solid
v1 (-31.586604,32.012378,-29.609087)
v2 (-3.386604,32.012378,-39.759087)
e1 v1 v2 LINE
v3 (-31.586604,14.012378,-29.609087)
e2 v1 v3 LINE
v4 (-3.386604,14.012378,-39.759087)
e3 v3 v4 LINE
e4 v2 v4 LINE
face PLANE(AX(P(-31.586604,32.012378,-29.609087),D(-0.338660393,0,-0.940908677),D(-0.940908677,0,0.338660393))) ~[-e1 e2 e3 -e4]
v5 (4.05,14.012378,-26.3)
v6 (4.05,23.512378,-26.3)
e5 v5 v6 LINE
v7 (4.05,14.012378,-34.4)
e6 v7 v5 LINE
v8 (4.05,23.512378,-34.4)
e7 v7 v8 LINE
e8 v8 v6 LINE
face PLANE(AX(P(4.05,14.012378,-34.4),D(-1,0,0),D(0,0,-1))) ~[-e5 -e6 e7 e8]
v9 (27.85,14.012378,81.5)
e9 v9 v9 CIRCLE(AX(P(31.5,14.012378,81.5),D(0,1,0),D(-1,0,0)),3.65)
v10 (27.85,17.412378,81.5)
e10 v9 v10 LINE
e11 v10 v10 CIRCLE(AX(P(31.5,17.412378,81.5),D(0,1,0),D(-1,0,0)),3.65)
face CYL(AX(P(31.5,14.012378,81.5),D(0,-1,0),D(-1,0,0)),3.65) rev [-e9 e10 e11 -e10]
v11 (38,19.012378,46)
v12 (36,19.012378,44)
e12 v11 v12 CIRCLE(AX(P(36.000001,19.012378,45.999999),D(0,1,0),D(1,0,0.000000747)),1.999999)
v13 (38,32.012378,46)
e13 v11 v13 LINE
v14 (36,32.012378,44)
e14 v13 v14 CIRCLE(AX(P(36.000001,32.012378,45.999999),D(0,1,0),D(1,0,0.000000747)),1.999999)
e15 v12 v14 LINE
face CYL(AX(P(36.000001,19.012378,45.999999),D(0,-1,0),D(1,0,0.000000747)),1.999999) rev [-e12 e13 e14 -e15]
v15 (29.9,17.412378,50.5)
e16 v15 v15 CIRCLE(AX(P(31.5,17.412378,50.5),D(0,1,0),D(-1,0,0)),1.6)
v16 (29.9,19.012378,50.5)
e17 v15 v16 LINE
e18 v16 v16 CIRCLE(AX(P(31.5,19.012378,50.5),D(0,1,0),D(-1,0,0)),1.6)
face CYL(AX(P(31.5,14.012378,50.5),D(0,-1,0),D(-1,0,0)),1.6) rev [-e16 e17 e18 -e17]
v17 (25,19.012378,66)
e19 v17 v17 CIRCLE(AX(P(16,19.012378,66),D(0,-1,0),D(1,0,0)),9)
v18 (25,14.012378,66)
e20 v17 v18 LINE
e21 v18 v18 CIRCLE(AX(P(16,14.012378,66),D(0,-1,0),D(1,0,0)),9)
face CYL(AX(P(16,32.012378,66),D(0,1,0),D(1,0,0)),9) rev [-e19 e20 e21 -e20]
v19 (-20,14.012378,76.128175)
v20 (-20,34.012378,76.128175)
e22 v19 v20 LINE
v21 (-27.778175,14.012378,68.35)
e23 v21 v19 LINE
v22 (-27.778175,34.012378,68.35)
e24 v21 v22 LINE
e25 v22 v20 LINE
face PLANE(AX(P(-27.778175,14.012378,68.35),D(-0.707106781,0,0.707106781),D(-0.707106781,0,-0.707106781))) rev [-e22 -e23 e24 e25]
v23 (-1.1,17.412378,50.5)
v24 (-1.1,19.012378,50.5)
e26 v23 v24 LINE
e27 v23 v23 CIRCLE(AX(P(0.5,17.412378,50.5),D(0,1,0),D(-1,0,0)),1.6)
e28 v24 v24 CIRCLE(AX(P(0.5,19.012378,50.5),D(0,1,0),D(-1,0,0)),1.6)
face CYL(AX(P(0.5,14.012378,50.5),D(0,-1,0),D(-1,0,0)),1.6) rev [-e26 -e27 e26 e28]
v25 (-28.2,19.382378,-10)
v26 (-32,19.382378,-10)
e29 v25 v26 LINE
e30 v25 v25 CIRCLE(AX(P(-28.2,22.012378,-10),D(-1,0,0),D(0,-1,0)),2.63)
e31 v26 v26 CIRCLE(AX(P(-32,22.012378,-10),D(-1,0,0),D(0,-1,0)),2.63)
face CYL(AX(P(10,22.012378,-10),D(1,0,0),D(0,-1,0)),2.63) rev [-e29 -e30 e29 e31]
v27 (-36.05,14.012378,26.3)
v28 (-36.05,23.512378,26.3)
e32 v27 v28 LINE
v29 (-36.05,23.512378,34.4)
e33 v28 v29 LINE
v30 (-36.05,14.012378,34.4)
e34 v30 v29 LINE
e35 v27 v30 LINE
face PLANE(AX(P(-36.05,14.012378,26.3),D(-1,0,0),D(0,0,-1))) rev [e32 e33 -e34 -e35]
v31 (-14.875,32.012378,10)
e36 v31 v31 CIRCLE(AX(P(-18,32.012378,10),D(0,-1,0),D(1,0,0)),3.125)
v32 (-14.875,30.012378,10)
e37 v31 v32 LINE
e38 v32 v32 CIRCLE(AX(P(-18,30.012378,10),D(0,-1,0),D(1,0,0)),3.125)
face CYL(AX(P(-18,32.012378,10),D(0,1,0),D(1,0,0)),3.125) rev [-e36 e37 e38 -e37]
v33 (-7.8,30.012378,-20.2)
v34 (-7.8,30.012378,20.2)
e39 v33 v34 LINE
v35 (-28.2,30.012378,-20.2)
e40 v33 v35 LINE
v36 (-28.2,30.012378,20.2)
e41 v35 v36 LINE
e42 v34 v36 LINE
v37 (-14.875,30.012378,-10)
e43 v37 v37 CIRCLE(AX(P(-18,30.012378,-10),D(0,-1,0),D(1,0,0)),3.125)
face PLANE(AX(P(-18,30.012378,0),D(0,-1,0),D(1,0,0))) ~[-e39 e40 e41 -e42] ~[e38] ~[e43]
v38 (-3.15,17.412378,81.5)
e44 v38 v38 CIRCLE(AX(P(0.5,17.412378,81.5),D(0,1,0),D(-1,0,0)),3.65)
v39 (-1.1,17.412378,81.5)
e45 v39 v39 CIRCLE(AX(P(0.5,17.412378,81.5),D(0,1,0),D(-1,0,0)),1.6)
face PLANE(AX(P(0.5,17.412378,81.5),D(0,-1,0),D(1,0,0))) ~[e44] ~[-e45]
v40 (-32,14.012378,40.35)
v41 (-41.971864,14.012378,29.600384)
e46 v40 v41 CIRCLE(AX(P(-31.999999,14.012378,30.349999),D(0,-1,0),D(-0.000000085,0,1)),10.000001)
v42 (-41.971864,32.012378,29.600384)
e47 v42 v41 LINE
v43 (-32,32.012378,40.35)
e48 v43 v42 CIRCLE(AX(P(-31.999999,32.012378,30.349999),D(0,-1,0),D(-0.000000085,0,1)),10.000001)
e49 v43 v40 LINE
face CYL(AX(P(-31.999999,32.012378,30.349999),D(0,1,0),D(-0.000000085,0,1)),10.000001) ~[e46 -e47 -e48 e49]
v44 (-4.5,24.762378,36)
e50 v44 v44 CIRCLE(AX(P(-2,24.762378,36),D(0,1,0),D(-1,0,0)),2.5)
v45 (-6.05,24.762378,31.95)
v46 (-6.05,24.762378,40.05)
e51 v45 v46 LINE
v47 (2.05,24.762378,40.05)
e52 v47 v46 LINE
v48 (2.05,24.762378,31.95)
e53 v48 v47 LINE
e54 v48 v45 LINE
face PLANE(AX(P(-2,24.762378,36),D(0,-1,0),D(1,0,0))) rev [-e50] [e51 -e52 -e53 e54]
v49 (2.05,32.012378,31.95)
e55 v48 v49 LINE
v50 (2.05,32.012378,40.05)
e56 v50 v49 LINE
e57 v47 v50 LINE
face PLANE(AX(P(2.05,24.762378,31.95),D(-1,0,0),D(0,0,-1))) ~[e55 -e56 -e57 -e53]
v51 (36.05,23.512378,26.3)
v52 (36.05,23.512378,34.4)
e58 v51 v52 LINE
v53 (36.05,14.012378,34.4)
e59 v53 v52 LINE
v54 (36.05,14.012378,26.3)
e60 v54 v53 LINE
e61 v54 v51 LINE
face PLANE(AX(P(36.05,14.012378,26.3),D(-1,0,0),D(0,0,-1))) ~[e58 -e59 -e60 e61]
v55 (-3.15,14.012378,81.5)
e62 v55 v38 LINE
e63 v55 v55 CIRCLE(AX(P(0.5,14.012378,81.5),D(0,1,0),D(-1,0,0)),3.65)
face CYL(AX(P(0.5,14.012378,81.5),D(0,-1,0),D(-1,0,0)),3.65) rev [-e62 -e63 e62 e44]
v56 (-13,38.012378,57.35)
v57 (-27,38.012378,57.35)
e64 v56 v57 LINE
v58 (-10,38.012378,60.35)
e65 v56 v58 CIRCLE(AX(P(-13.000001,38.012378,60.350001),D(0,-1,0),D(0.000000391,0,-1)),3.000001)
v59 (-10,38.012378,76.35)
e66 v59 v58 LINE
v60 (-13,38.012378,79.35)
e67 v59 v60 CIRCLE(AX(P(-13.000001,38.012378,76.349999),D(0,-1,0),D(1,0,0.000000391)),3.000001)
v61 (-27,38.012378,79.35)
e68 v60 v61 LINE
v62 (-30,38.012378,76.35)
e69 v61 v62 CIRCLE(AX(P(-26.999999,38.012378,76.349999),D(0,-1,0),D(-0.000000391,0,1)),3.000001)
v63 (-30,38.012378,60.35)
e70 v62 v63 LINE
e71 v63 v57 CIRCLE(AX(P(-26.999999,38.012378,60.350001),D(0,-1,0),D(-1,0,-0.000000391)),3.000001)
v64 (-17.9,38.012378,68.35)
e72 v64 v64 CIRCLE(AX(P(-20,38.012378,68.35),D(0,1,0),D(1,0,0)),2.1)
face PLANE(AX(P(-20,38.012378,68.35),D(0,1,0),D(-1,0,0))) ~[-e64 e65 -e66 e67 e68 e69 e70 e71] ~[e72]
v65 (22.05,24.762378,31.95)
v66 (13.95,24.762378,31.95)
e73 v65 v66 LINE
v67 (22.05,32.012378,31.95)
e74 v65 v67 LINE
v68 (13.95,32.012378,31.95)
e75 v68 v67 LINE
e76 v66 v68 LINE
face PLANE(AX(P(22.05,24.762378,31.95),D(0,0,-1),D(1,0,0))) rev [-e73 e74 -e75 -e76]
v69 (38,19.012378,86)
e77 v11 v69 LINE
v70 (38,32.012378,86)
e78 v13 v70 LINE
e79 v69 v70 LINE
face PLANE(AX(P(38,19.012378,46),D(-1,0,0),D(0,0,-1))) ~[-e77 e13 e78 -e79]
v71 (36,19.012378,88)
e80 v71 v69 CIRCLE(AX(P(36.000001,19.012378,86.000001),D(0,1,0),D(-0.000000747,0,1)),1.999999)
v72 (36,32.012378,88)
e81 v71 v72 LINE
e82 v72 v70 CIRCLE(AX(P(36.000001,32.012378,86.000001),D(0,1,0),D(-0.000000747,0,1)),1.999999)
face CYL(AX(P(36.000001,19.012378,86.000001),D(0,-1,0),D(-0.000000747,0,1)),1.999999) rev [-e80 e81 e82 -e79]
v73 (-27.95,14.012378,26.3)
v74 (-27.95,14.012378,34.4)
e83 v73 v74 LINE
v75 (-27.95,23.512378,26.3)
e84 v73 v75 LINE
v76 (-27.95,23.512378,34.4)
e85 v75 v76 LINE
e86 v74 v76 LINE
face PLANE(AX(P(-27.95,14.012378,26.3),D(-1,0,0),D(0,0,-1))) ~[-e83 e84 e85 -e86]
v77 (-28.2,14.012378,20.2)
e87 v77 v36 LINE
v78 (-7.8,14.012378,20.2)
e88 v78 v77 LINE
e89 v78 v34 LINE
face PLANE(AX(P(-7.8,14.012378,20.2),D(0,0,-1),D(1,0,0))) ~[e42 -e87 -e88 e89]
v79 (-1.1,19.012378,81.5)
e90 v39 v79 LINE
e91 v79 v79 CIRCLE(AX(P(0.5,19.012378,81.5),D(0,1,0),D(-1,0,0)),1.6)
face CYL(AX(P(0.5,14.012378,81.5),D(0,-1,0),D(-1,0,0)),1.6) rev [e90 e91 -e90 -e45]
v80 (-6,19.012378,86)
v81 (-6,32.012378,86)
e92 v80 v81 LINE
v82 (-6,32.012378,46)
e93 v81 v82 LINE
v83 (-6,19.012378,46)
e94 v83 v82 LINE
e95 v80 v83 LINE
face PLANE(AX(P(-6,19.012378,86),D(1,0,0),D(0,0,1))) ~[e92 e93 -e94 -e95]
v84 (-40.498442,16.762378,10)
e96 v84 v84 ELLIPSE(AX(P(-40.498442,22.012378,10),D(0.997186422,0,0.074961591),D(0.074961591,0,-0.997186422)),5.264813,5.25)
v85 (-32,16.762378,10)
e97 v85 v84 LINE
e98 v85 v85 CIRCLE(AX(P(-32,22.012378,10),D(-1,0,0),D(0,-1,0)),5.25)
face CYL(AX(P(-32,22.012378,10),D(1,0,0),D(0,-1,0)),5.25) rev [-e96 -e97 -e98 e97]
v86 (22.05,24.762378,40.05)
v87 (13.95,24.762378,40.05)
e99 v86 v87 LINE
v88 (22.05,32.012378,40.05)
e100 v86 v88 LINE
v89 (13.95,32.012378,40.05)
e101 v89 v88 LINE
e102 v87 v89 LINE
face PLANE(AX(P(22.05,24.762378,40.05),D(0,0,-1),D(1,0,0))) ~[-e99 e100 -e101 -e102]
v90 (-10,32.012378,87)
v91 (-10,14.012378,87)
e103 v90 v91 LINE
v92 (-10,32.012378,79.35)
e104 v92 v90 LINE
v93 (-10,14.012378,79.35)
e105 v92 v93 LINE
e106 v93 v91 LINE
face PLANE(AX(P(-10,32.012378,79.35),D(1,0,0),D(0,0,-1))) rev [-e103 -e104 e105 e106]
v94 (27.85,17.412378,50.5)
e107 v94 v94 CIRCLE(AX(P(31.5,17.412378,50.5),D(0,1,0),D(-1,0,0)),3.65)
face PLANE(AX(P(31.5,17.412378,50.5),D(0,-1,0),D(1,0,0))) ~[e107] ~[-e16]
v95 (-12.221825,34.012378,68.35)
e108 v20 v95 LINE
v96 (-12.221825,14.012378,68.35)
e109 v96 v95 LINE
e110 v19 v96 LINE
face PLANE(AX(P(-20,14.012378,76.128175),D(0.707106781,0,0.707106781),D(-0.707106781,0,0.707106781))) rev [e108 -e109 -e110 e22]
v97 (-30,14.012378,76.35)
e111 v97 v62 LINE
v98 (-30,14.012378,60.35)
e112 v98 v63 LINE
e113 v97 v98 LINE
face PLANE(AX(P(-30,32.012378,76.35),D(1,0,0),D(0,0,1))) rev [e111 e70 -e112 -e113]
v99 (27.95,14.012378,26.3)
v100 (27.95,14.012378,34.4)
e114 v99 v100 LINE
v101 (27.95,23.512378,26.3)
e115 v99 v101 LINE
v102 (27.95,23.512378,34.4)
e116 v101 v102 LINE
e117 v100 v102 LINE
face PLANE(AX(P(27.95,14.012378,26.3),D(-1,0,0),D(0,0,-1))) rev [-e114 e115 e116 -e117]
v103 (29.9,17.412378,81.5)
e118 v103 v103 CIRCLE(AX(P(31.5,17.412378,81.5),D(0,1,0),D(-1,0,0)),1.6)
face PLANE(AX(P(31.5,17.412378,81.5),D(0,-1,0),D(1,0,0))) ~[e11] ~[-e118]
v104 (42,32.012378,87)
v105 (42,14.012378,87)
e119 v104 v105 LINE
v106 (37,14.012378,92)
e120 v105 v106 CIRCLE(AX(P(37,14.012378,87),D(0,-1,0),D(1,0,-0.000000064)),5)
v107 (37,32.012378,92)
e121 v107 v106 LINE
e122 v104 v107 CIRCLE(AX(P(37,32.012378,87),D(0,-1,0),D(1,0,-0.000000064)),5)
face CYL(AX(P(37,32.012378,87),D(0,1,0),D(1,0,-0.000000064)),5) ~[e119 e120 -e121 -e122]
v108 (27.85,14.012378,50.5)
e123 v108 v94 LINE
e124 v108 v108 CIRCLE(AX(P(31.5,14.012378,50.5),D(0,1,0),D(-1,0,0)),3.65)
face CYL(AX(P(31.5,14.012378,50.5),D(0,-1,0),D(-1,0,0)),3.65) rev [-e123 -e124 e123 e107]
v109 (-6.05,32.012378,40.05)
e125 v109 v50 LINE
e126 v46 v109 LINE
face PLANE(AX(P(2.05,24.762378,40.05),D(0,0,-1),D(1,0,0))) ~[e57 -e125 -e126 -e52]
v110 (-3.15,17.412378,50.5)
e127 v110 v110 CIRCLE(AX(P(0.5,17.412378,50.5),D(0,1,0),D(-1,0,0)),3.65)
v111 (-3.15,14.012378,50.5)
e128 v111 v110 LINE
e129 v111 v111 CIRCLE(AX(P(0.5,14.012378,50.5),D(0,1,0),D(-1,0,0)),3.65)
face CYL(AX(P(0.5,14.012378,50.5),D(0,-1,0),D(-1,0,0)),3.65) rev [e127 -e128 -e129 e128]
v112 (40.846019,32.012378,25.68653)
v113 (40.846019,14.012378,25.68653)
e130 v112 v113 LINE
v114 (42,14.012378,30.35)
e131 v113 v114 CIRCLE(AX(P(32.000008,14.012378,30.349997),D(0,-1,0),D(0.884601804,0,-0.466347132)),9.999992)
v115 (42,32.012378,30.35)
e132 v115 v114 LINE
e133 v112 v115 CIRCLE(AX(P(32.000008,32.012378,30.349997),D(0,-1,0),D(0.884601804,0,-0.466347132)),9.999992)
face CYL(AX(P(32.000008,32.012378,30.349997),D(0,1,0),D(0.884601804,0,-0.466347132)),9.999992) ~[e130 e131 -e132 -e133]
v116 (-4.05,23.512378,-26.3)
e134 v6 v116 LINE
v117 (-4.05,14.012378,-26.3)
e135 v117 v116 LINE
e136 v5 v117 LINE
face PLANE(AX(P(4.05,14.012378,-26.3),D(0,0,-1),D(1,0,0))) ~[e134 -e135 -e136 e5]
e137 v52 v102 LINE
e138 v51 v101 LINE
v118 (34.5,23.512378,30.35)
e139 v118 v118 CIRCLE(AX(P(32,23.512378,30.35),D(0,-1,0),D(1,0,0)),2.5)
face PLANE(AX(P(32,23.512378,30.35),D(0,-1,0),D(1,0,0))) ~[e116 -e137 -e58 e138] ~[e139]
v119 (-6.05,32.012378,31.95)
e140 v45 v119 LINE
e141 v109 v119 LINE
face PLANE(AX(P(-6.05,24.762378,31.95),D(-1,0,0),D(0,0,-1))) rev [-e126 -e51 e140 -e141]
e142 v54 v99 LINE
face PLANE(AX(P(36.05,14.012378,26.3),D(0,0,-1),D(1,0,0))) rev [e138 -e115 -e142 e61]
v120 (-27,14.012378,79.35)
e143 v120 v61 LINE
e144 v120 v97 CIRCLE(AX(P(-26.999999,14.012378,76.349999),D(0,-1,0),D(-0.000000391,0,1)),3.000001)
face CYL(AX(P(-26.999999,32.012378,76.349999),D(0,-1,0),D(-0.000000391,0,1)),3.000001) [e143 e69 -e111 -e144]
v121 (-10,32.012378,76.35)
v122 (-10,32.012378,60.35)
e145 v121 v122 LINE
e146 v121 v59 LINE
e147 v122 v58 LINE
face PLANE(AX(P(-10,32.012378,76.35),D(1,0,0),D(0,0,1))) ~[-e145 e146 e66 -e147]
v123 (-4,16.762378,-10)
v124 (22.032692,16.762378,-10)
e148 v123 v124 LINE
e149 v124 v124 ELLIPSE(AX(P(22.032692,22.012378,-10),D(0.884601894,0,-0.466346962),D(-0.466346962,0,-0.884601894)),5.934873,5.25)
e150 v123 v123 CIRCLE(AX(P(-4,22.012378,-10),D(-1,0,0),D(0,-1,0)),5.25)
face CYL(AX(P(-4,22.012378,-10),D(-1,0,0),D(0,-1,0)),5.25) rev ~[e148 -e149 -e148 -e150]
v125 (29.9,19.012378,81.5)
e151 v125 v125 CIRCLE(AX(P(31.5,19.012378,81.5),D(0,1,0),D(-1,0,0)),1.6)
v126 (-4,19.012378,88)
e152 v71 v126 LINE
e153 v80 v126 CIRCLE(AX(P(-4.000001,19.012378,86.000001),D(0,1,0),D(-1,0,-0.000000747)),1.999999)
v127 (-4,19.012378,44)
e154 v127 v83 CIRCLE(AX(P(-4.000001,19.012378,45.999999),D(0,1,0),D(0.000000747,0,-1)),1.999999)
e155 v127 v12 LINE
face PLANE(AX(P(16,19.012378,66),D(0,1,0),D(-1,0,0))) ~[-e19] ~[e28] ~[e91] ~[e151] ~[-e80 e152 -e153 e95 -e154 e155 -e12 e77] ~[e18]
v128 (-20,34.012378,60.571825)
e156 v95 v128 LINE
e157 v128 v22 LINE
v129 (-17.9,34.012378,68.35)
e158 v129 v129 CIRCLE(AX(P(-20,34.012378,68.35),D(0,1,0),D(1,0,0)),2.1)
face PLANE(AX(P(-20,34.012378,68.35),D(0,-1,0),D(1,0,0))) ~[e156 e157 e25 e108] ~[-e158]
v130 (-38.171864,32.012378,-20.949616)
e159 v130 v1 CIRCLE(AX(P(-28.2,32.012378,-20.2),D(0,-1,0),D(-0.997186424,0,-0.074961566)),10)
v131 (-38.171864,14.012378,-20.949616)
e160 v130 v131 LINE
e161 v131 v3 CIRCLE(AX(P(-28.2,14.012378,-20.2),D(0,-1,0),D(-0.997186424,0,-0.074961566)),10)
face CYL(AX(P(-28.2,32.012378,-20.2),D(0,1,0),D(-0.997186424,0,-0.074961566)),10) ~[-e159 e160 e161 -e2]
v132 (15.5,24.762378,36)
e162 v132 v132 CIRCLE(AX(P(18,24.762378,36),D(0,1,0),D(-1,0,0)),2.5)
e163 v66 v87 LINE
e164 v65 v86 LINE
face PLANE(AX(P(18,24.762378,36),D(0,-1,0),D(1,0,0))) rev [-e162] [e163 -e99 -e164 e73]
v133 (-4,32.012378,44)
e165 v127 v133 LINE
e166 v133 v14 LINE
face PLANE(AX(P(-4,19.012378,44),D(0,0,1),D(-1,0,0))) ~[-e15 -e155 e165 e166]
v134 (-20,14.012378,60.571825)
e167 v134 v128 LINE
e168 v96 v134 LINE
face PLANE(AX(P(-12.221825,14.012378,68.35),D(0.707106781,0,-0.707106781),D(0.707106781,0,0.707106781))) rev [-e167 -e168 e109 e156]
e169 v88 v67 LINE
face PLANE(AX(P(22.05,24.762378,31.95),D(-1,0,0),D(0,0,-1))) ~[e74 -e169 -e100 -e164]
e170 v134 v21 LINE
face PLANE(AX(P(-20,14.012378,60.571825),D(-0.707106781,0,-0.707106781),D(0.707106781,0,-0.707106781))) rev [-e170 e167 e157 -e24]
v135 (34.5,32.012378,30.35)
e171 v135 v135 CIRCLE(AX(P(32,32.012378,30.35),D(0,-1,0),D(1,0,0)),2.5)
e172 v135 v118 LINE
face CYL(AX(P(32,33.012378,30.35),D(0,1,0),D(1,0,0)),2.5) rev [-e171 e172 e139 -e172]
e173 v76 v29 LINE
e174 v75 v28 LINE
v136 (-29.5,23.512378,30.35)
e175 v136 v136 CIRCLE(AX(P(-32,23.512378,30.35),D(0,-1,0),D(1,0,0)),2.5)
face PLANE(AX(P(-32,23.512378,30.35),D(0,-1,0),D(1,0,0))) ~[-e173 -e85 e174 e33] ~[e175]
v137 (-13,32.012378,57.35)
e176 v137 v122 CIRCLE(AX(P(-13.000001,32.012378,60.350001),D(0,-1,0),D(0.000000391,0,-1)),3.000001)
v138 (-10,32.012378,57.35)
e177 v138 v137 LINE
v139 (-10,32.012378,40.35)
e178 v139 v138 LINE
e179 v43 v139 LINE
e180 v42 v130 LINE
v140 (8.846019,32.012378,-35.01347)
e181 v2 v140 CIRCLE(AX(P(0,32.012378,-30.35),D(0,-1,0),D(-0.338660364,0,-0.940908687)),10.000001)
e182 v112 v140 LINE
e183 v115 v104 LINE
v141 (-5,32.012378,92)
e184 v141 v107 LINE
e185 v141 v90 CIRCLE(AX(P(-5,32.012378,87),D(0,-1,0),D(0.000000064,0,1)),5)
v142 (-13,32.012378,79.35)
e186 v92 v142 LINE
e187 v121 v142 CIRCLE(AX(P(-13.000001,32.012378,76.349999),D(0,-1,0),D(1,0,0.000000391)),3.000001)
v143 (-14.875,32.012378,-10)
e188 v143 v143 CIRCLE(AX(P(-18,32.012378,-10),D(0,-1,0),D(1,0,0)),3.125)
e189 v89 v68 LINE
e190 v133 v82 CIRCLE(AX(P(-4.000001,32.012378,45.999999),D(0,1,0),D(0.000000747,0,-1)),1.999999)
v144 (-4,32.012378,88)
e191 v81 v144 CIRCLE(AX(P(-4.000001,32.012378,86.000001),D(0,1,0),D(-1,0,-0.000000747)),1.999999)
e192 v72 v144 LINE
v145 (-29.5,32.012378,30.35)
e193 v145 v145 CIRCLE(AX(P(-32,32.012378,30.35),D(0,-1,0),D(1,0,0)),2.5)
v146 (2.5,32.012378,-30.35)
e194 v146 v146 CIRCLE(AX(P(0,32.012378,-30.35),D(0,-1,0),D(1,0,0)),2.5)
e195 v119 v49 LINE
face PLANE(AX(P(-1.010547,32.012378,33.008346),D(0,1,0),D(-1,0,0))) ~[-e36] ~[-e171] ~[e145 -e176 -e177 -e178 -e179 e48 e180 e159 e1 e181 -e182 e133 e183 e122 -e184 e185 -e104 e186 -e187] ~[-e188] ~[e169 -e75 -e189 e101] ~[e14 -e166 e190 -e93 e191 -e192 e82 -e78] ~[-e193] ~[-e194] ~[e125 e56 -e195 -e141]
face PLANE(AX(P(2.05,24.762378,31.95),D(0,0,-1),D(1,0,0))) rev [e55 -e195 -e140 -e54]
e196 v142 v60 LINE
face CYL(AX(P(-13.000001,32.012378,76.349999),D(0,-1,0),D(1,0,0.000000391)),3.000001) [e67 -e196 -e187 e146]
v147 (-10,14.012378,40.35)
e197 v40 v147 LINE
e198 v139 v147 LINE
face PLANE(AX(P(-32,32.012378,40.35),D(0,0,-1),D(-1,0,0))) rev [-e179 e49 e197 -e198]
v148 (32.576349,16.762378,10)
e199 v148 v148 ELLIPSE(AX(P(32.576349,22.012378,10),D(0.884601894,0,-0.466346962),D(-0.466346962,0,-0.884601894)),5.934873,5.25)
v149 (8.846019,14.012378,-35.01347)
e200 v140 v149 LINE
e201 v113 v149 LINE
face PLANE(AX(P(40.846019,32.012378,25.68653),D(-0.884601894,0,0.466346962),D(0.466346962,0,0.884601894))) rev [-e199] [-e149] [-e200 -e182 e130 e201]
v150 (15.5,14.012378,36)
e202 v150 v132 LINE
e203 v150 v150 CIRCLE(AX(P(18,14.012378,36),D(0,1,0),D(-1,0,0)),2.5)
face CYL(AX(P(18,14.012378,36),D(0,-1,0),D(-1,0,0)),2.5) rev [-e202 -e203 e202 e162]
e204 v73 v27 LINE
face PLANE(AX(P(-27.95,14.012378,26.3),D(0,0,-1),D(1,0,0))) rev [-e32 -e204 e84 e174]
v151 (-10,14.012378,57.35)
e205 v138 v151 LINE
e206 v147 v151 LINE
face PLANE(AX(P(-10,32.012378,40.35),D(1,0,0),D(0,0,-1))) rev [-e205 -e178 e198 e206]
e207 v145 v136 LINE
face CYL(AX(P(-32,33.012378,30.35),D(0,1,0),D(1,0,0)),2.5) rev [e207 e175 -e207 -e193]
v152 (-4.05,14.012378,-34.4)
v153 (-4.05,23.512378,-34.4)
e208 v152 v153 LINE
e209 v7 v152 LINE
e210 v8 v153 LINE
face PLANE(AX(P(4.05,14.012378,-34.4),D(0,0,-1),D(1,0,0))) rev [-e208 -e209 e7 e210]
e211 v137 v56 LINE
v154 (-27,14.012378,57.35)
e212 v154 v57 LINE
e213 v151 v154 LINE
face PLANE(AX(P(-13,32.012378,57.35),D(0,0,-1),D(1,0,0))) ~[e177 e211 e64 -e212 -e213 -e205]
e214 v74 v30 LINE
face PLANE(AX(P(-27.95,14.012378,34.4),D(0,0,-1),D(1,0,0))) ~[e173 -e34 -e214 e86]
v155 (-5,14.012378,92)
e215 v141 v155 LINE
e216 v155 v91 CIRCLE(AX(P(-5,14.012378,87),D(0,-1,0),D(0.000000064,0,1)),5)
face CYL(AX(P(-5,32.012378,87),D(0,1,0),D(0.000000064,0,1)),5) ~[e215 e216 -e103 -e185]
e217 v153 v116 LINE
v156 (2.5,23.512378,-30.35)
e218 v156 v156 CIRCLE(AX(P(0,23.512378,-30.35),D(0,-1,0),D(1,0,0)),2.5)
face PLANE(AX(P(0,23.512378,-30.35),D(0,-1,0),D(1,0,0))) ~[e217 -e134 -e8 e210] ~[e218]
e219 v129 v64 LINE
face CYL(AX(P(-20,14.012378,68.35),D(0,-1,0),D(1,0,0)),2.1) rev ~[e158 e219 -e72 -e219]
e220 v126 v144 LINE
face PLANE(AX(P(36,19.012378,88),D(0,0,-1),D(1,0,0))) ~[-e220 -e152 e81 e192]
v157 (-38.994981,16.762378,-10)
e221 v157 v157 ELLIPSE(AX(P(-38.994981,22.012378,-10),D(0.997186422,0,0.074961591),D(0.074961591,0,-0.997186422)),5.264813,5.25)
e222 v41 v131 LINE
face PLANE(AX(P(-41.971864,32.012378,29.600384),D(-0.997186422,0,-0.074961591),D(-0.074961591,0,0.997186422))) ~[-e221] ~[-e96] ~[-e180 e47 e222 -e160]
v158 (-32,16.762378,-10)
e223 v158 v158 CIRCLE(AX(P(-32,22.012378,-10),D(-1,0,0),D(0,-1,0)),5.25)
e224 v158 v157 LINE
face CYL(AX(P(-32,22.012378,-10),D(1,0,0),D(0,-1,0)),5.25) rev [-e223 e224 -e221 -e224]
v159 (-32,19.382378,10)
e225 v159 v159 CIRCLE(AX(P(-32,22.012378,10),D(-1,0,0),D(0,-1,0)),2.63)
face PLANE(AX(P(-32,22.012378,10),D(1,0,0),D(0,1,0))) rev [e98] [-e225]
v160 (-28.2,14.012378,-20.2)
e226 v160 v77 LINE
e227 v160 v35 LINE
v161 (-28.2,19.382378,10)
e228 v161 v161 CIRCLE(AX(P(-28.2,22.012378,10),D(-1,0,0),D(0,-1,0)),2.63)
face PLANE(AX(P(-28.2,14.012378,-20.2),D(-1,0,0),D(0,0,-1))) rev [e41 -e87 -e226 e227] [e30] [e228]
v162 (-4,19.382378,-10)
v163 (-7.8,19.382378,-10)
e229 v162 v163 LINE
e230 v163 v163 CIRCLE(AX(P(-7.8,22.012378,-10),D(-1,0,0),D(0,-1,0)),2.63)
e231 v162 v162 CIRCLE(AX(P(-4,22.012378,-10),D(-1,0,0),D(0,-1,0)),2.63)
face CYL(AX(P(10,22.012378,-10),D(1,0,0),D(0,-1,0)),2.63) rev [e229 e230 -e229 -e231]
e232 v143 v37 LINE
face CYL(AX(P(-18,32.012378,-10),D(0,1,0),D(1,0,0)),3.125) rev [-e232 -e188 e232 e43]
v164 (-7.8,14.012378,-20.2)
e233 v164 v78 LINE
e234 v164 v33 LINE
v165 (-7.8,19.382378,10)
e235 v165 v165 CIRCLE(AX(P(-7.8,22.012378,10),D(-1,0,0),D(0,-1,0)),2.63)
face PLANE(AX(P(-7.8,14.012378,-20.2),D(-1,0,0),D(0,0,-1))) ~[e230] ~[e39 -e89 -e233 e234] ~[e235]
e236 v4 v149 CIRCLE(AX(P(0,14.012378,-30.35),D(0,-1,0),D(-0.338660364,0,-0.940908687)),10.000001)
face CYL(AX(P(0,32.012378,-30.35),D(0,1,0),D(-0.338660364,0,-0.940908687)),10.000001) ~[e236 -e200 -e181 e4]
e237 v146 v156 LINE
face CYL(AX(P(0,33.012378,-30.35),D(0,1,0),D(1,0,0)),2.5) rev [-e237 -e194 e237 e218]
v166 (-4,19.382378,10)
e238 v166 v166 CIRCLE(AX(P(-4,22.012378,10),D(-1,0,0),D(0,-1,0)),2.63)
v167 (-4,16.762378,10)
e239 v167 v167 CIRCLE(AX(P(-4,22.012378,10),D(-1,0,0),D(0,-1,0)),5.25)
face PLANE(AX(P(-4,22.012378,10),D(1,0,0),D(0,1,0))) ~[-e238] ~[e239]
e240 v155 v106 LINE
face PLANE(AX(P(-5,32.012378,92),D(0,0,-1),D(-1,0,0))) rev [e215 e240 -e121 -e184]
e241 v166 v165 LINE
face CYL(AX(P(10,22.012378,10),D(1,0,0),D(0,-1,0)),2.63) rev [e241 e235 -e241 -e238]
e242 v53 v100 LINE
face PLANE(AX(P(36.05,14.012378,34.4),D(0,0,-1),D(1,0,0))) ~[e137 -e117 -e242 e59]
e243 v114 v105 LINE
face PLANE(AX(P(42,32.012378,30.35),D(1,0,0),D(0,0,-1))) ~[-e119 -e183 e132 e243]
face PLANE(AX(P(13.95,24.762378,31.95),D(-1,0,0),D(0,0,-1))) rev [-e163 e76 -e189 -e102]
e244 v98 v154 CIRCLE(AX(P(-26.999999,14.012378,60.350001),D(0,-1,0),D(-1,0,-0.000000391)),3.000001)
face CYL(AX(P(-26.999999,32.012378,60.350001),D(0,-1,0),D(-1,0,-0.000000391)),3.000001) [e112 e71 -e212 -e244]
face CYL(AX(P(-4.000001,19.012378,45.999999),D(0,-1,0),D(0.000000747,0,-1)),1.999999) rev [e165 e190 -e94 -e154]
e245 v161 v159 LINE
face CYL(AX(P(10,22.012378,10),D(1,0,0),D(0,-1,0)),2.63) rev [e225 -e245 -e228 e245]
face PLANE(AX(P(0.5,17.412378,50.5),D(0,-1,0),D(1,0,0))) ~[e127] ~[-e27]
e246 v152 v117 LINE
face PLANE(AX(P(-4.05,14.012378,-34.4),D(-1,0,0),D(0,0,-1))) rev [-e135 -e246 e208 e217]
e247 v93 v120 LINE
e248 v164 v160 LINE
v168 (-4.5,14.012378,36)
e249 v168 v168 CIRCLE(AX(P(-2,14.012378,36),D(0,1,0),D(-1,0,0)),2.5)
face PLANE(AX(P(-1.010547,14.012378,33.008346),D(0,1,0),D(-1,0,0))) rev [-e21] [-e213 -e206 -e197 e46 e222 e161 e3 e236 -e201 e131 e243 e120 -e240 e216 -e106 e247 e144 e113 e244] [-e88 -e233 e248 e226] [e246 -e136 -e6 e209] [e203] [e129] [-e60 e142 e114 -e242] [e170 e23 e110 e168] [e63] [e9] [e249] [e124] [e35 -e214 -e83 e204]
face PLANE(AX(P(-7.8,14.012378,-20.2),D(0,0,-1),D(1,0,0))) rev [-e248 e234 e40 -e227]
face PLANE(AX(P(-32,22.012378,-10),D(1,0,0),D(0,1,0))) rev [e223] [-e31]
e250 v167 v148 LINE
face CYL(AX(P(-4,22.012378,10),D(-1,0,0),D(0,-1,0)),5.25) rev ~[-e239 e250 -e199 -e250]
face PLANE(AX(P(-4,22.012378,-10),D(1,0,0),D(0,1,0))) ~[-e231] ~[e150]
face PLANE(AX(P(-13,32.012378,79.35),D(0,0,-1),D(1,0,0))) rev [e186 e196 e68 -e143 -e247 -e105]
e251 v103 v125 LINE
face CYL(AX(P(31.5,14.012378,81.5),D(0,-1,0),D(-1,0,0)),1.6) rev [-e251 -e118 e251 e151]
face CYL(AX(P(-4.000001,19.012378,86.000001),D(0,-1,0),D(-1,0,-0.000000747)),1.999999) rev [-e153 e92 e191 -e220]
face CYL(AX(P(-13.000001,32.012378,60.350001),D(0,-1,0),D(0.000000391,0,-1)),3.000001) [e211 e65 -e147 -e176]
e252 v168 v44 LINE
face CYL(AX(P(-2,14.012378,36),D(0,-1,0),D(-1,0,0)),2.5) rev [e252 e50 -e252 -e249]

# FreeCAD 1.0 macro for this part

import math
import FreeCAD as App
import Part
import Sketcher
Q = App.Units.Quantity


def add_polygon(sketch, points):
    """Adds a closed chain of lines whose ends are joined by coincident constraints."""
    first, n = sketch.GeometryCount, len(points)
    for a, b in zip(points, points[1:] + points[:1]):
        sketch.addGeometry(Part.LineSegment(App.Vector(*a, 0), App.Vector(*b, 0)), False)
    for i in range(n):
        sketch.addConstraint(Sketcher.Constraint("Coincident", first + i, 2, first + (i + 1) % n, 1))

doc = App.newDocument("Part")
body = doc.addObject("PartDesign::Body", "Body")

# Sketch on XZ plane
sketch1 = doc.addObject("Sketcher::SketchObject", "Sketch")
body.addObject(sketch1)
sketch1.AttachmentSupport = (doc.XZ_Plane, [""])
sketch1.MapMode = "FlatFace"
sketch1.AttachmentOffset = App.Placement(App.Vector(0, 0, -1), App.Rotation())
sketch1.addGeometry([
    Part.ArcOfCircle(Part.Circle(App.Vector(-31.999999, 30.349999, 0), App.Vector(0, 0, 1), 10.000001), math.radians(90.000005), math.radians(184.299012)),  # 0
    Part.LineSegment(App.Vector(-41.971864, 29.600384, 0), App.Vector(-38.171864, -20.949616, 0)),  # 1
    Part.ArcOfCircle(Part.Circle(App.Vector(-28.2, -20.2, 0), App.Vector(0, 0, 1), 10), math.radians(-175.700986), math.radians(-109.795281)),  # 2
    Part.LineSegment(App.Vector(-31.586604, -29.609087, 0), App.Vector(-3.386604, -39.759087, 0)),  # 3
    Part.ArcOfCircle(Part.Circle(App.Vector(0, -30.35, 0), App.Vector(0, 0, 1), 10.000001), math.radians(-109.795277), math.radians(-27.797433)),  # 4
    Part.LineSegment(App.Vector(8.846019, -35.01347, 0), App.Vector(40.846019, 25.68653, 0)),  # 5
    Part.ArcOfCircle(Part.Circle(App.Vector(32.000008, 30.349997, 0), App.Vector(0, 0, 1), 9.999992), math.radians(-27.797441), math.radians(0.000015)),  # 6
    Part.LineSegment(App.Vector(42, 30.35, 0), App.Vector(42, 87, 0)),  # 7
    Part.ArcOfCircle(Part.Circle(App.Vector(37, 87, 0), App.Vector(0, 0, 1), 5), math.radians(-0.000004), math.radians(90.000004)),  # 8
    Part.LineSegment(App.Vector(37, 92, 0), App.Vector(-5, 92, 0)),  # 9
    Part.ArcOfCircle(Part.Circle(App.Vector(-5, 87, 0), App.Vector(0, 0, 1), 5), math.radians(89.999996), math.radians(180.000004)),  # 10
    Part.LineSegment(App.Vector(-10, 87, 0), App.Vector(-10, 79.35, 0)),  # 11
    Part.LineSegment(App.Vector(-10, 79.35, 0), App.Vector(-27, 79.35, 0)),  # 12
    Part.ArcOfCircle(Part.Circle(App.Vector(-26.999999, 76.349999, 0), App.Vector(0, 0, 1), 3.000001), math.radians(90.000022), math.radians(179.999978)),  # 13
    Part.LineSegment(App.Vector(-30, 76.35, 0), App.Vector(-30, 60.35, 0)),  # 14
    Part.ArcOfCircle(Part.Circle(App.Vector(-26.999999, 60.350001, 0), App.Vector(0, 0, 1), 3.000001), math.radians(-179.999978), math.radians(-90.000022)),  # 15
    Part.LineSegment(App.Vector(-27, 57.35, 0), App.Vector(-10, 57.35, 0)),  # 16
    Part.LineSegment(App.Vector(-10, 57.35, 0), App.Vector(-10, 40.35, 0)),  # 17
    Part.LineSegment(App.Vector(-10, 40.35, 0), App.Vector(-32, 40.35, 0)),  # 18
    Part.Circle(App.Vector(-18, -10, 0), App.Vector(0, 0, 1), 3.125),  # 19
    Part.Circle(App.Vector(-18, 10, 0), App.Vector(0, 0, 1), 3.125),  # 20
    Part.Circle(App.Vector(16, 66, 0), App.Vector(0, 0, 1), 9),  # 21
], False)
sketch1.addConstraint([
    Sketcher.Constraint("Tangent", 0, 2, 1, 1),
    Sketcher.Constraint("Tangent", 1, 2, 2, 1),
    Sketcher.Constraint("Tangent", 2, 2, 3, 1),
    Sketcher.Constraint("Tangent", 3, 2, 4, 1),
    Sketcher.Constraint("Tangent", 4, 2, 5, 1),
    Sketcher.Constraint("Tangent", 5, 2, 6, 1),
    Sketcher.Constraint("Tangent", 6, 2, 7, 1),
    Sketcher.Constraint("Tangent", 7, 2, 8, 1),
    Sketcher.Constraint("Tangent", 8, 2, 9, 1),
    Sketcher.Constraint("Tangent", 9, 2, 10, 1),
    Sketcher.Constraint("Tangent", 10, 2, 11, 1),
    Sketcher.Constraint("Coincident", 11, 2, 12, 1),
    Sketcher.Constraint("Tangent", 12, 2, 13, 1),
    Sketcher.Constraint("Tangent", 13, 2, 14, 1),
    Sketcher.Constraint("Tangent", 14, 2, 15, 1),
    Sketcher.Constraint("Tangent", 15, 2, 16, 1),
    Sketcher.Constraint("Coincident", 16, 2, 17, 1),
    Sketcher.Constraint("Coincident", 17, 2, 18, 1),
    Sketcher.Constraint("Tangent", 18, 2, 0, 1),
    Sketcher.Constraint("Vertical", 7),
    Sketcher.Constraint("Horizontal", 9),
    Sketcher.Constraint("Vertical", 11),
    Sketcher.Constraint("Horizontal", 12),
    Sketcher.Constraint("Vertical", 14),
    Sketcher.Constraint("Horizontal", 16),
    Sketcher.Constraint("Vertical", 17),
    Sketcher.Constraint("Horizontal", 18),
    Sketcher.Constraint("Equal", 0, 2),
    Sketcher.Constraint("Equal", 2, 4),
    Sketcher.Constraint("Equal", 8, 10),
    Sketcher.Constraint("Equal", 13, 15),
    Sketcher.Constraint("Equal", 19, 20),
    Sketcher.Constraint("Symmetric", 0, 3, 6, 3, -2),
    Sketcher.Constraint("Symmetric", 19, 3, 20, 3, -1),
    Sketcher.Constraint("PointOnObject", 4, 3, -2),
    Sketcher.Constraint("Vertical", 11, 2, 16, 2),
    Sketcher.Constraint("Equal", 16, 17),
    Sketcher.Constraint("Diameter", 21, Q("18 mm")),
    Sketcher.Constraint("Radius", 0, Q("10.000001 mm")),
    Sketcher.Constraint("Radius", 8, Q("5 mm")),
    Sketcher.Constraint("Radius", 13, Q("3.000001 mm")),
    Sketcher.Constraint("Diameter", 19, Q("6.25 mm")),
    Sketcher.Constraint("DistanceX", 9, 2, 9, 1, Q("42 mm")),
    Sketcher.Constraint("DistanceX", 12, 2, 12, 1, Q("17 mm")),
    Sketcher.Constraint("DistanceX", 18, 2, 18, 1, Q("22 mm")),
    Sketcher.Constraint("DistanceY", 14, 2, 14, 1, Q("16 mm")),
    Sketcher.Constraint("DistanceX", 0, 3, -1, 1, Q("31.999999 mm")),
    Sketcher.Constraint("DistanceY", -1, 1, 8, 3, Q("87 mm")),
    Sketcher.Constraint("DistanceX", 19, 3, -1, 1, Q("18 mm")),
    Sketcher.Constraint("DistanceY", 19, 3, -1, 1, Q("10 mm")),
    Sketcher.Constraint("DistanceX", -1, 1, 21, 3, Q("16 mm")),
    Sketcher.Constraint("DistanceY", -1, 1, 21, 3, Q("66 mm")),
    Sketcher.Constraint("DistanceY", 7, 1, 7, 2, Q("56.65 mm")),
    Sketcher.Constraint("DistanceX", 2, 3, -1, 1, Q("28.2 mm")),
    Sketcher.Constraint("DistanceY", 2, 3, -1, 1, Q("20.2 mm")),
    Sketcher.Constraint("DistanceY", 4, 3, 0, 3, Q("60.699999 mm")),
])
pad1 = doc.addObject("PartDesign::Pad", "Pad")
body.addObject(pad1)
pad1.Profile = sketch1
pad1.Length = 18
pad1.Reversed = True

# Sketch on XZ plane
sketch2 = doc.addObject("Sketcher::SketchObject", "Sketch001")
body.addObject(sketch2)
sketch2.AttachmentSupport = (doc.XZ_Plane, [""])
sketch2.MapMode = "FlatFace"
sketch2.addGeometry([
    Part.Circle(App.Vector(-32, 30.35, 0), App.Vector(0, 0, 1), 2.5),
    Part.Circle(App.Vector(32, 30.35, 0), App.Vector(0, 0, 1), 2.5),
    Part.Circle(App.Vector(0, -30.35, 0), App.Vector(0, 0, 1), 2.5),
], False)
sketch2.addConstraint([
    Sketcher.Constraint("Equal", 0, 1),
    Sketcher.Constraint("Equal", 1, 2),
    Sketcher.Constraint("Symmetric", 0, 3, 1, 3, -2),
    Sketcher.Constraint("PointOnObject", 2, 3, -2),
    Sketcher.Constraint("Diameter", 0, Q("5 mm")),
    Sketcher.Constraint("DistanceX", 0, 3, -1, 1, Q("32 mm")),
    Sketcher.Constraint("DistanceY", 2, 3, 0, 3, Q("60.7 mm")),
    Sketcher.Constraint("DistanceY", -1, 1, 0, 3, Q("30.35 mm")),
])
pocket1 = doc.addObject("PartDesign::Pocket", "Pocket")
body.addObject(pocket1)
pocket1.Profile = sketch2
pocket1.Type = "ThroughAll"
pocket1.Midplane = True

# Sketch on XZ plane
sketch3 = doc.addObject("Sketcher::SketchObject", "Sketch002")
body.addObject(sketch3)
sketch3.AttachmentSupport = (doc.XZ_Plane, [""])
sketch3.MapMode = "FlatFace"
sketch3.AttachmentOffset = App.Placement(App.Vector(0, 0, -14), App.Rotation())
sketch3.addGeometry([
    Part.LineSegment(App.Vector(-4, 88, 0), App.Vector(36, 88, 0)),  # 0
    Part.ArcOfCircle(Part.Circle(App.Vector(36.000001, 86.000001, 0), App.Vector(0, 0, 1), 1.999999), math.radians(-0.000043), math.radians(90.000043)),  # 1
    Part.LineSegment(App.Vector(38, 86, 0), App.Vector(38, 46, 0)),  # 2
    Part.ArcOfCircle(Part.Circle(App.Vector(36.000001, 45.999999, 0), App.Vector(0, 0, 1), 1.999999), math.radians(-90.000043), math.radians(0.000043)),  # 3
    Part.LineSegment(App.Vector(36, 44, 0), App.Vector(-4, 44, 0)),  # 4
    Part.ArcOfCircle(Part.Circle(App.Vector(-4.000001, 45.999999, 0), App.Vector(0, 0, 1), 1.999999), math.radians(179.999957), math.radians(270.000043)),  # 5
    Part.LineSegment(App.Vector(-6, 46, 0), App.Vector(-6, 86, 0)),  # 6
    Part.ArcOfCircle(Part.Circle(App.Vector(-4.000001, 86.000001, 0), App.Vector(0, 0, 1), 1.999999), math.radians(89.999957), math.radians(180.000043)),  # 7
], False)
sketch3.addConstraint([
    Sketcher.Constraint("Tangent", 0, 2, 1, 2),
    Sketcher.Constraint("Tangent", 1, 1, 2, 1),
    Sketcher.Constraint("Tangent", 2, 2, 3, 2),
    Sketcher.Constraint("Tangent", 3, 1, 4, 1),
    Sketcher.Constraint("Tangent", 4, 2, 5, 2),
    Sketcher.Constraint("Tangent", 5, 1, 6, 1),
    Sketcher.Constraint("Tangent", 6, 2, 7, 2),
    Sketcher.Constraint("Tangent", 7, 1, 0, 1),
    Sketcher.Constraint("Horizontal", 0),
    Sketcher.Constraint("Vertical", 2),
    Sketcher.Constraint("Horizontal", 4),
    Sketcher.Constraint("Vertical", 6),
    Sketcher.Constraint("Equal", 1, 3),
    Sketcher.Constraint("Equal", 3, 5),
    Sketcher.Constraint("Equal", 5, 7),
    Sketcher.Constraint("Equal", 4, 2),
    Sketcher.Constraint("Radius", 1, Q("1.999999 mm")),
    Sketcher.Constraint("DistanceX", 0, 1, 0, 2, Q("40 mm")),
    Sketcher.Constraint("DistanceX", -1, 1, 1, 3, Q("36.000001 mm")),
    Sketcher.Constraint("DistanceY", -1, 1, 1, 3, Q("86.000001 mm")),
])
pocket2 = doc.addObject("PartDesign::Pocket", "Pocket001")
body.addObject(pocket2)
pocket2.Profile = sketch3
pocket2.Length = 13
pocket2.Reversed = True

# Sketch on XZ plane
sketch4 = doc.addObject("Sketcher::SketchObject", "Sketch003")
body.addObject(sketch4)
sketch4.AttachmentSupport = (doc.XZ_Plane, [""])
sketch4.MapMode = "FlatFace"
sketch4.AttachmentOffset = App.Placement(App.Vector(0, 0, -19), App.Rotation())
sketch4.addGeometry([
    Part.Circle(App.Vector(31.5, 81.5, 0), App.Vector(0, 0, 1), 1.6),
    Part.Circle(App.Vector(0.5, 81.5, 0), App.Vector(0, 0, 1), 1.6),
    Part.Circle(App.Vector(31.5, 50.5, 0), App.Vector(0, 0, 1), 1.6),
    Part.Circle(App.Vector(0.5, 50.5, 0), App.Vector(0, 0, 1), 1.6),
], False)
sketch4.addConstraint([
    Sketcher.Constraint("Equal", 0, 1),
    Sketcher.Constraint("Equal", 1, 2),
    Sketcher.Constraint("Equal", 2, 3),
    Sketcher.Constraint("Horizontal", 0, 3, 1, 3),
    Sketcher.Constraint("Horizontal", 2, 3, 3, 3),
    Sketcher.Constraint("Vertical", 0, 3, 2, 3),
    Sketcher.Constraint("Vertical", 1, 3, 3, 3),
    Sketcher.Constraint("Diameter", 0, Q("3.2 mm")),
    Sketcher.Constraint("DistanceX", 1, 3, 0, 3, Q("31 mm")),
    Sketcher.Constraint("DistanceY", 2, 3, 0, 3, Q("31 mm")),
    Sketcher.Constraint("DistanceX", -1, 1, 0, 3, Q("31.5 mm")),
    Sketcher.Constraint("DistanceY", -1, 1, 0, 3, Q("81.5 mm")),
])
pocket3 = doc.addObject("PartDesign::Pocket", "Pocket002")
body.addObject(pocket3)
pocket3.Profile = sketch4
pocket3.Type = "ThroughAll"
pocket3.Midplane = True

# Sketch on XZ plane
sketch5 = doc.addObject("Sketcher::SketchObject", "Sketch004")
body.addObject(sketch5)
sketch5.AttachmentSupport = (doc.XZ_Plane, [""])
sketch5.MapMode = "FlatFace"
sketch5.AttachmentOffset = App.Placement(App.Vector(0, 0, -19), App.Rotation())
sketch5.addGeometry([
    Part.Circle(App.Vector(31.5, 81.5, 0), App.Vector(0, 0, 1), 3.65),
    Part.Circle(App.Vector(0.5, 81.5, 0), App.Vector(0, 0, 1), 3.65),
    Part.Circle(App.Vector(31.5, 50.5, 0), App.Vector(0, 0, 1), 3.65),
    Part.Circle(App.Vector(0.5, 50.5, 0), App.Vector(0, 0, 1), 3.65),
], False)
sketch5.addConstraint([
    Sketcher.Constraint("Equal", 0, 1),
    Sketcher.Constraint("Equal", 1, 2),
    Sketcher.Constraint("Equal", 2, 3),
    Sketcher.Constraint("Horizontal", 0, 3, 1, 3),
    Sketcher.Constraint("Horizontal", 2, 3, 3, 3),
    Sketcher.Constraint("Vertical", 0, 3, 2, 3),
    Sketcher.Constraint("Vertical", 1, 3, 3, 3),
    Sketcher.Constraint("Diameter", 0, Q("7.3 mm")),
    Sketcher.Constraint("DistanceX", 1, 3, 0, 3, Q("31 mm")),
    Sketcher.Constraint("DistanceY", 2, 3, 0, 3, Q("31 mm")),
    Sketcher.Constraint("DistanceX", -1, 1, 0, 3, Q("31.5 mm")),
    Sketcher.Constraint("DistanceY", -1, 1, 0, 3, Q("81.5 mm")),
])
pocket4 = doc.addObject("PartDesign::Pocket", "Pocket003")
body.addObject(pocket4)
pocket4.Profile = sketch5
pocket4.Length = 3.4
pocket4.Reversed = True

# Sketch on XZ plane
sketch6 = doc.addObject("Sketcher::SketchObject", "Sketch005")
body.addObject(sketch6)
sketch6.AttachmentSupport = (doc.XZ_Plane, [""])
sketch6.MapMode = "FlatFace"
sketch6.AttachmentOffset = App.Placement(App.Vector(0, 0, -19), App.Rotation())
sketch6.addGeometry([
    Part.Circle(App.Vector(18, 36, 0), App.Vector(0, 0, 1), 2.5),
    Part.Circle(App.Vector(-2, 36, 0), App.Vector(0, 0, 1), 2.5),
], False)
sketch6.addConstraint([
    Sketcher.Constraint("Equal", 0, 1),
    Sketcher.Constraint("Horizontal", 0, 3, 1, 3),
    Sketcher.Constraint("Diameter", 0, Q("5 mm")),
    Sketcher.Constraint("DistanceX", -1, 1, 0, 3, Q("18 mm")),
    Sketcher.Constraint("DistanceY", -1, 1, 0, 3, Q("36 mm")),
    Sketcher.Constraint("DistanceX", 1, 3, -1, 1, Q("2 mm")),
])
pocket5 = doc.addObject("PartDesign::Pocket", "Pocket004")
body.addObject(pocket5)
pocket5.Profile = sketch6
pocket5.Length = 18.001
pocket5.Reversed = True

# Sketch on XZ plane
sketch7 = doc.addObject("Sketcher::SketchObject", "Sketch006")
body.addObject(sketch7)
sketch7.AttachmentSupport = (doc.XZ_Plane, [""])
sketch7.MapMode = "FlatFace"
sketch7.AttachmentOffset = App.Placement(App.Vector(0, 0, -8.25), App.Rotation())
add_polygon(sketch7, [(22.05, 40.05), (22.05, 31.95), (13.95, 31.95), (13.95, 40.05)])  # lines 0-3
add_polygon(sketch7, [(2.05, 40.05), (2.05, 31.95), (-6.05, 31.95), (-6.05, 40.05)])  # lines 4-7
sketch7.addConstraint([
    Sketcher.Constraint("Vertical", 0),
    Sketcher.Constraint("Horizontal", 1),
    Sketcher.Constraint("Vertical", 2),
    Sketcher.Constraint("Horizontal", 3),
    Sketcher.Constraint("Vertical", 4),
    Sketcher.Constraint("Horizontal", 5),
    Sketcher.Constraint("Vertical", 6),
    Sketcher.Constraint("Horizontal", 7),
    Sketcher.Constraint("Horizontal", 1, 2, 4, 2),
    Sketcher.Constraint("Horizontal", 3, 2, 6, 2),
    Sketcher.Constraint("Equal", 3, 5),
    Sketcher.Constraint("Equal", 7, 0),
    Sketcher.Constraint("DistanceX", 1, 2, 1, 1, Q("8.1 mm")),
    Sketcher.Constraint("DistanceX", 4, 2, 0, 2, Q("20 mm")),
    Sketcher.Constraint("DistanceX", -1, 1, 0, 2, Q("22.05 mm")),
    Sketcher.Constraint("DistanceY", -1, 1, 0, 2, Q("31.95 mm")),
])
pocket6 = doc.addObject("PartDesign::Pocket", "Pocket005")
body.addObject(pocket6)
pocket6.Profile = sketch7
pocket6.Length = 7.251
pocket6.Reversed = True

# Sketch on XZ plane
sketch8 = doc.addObject("Sketcher::SketchObject", "Sketch007")
body.addObject(sketch8)
sketch8.AttachmentSupport = (doc.XZ_Plane, [""])
sketch8.MapMode = "FlatFace"
sketch8.AttachmentOffset = App.Placement(App.Vector(0, 0, -19), App.Rotation())
add_polygon(sketch8, [(36.05, 34.4), (36.05, 26.3), (27.95, 26.3), (27.95, 34.4)])  # lines 0-3
add_polygon(sketch8, [(-27.95, 34.4), (-27.95, 26.3), (-36.05, 26.3), (-36.05, 34.4)])  # lines 4-7
add_polygon(sketch8, [(4.05, -26.3), (4.05, -34.4), (-4.05, -34.4), (-4.05, -26.3)])  # lines 8-11
sketch8.addConstraint([
    Sketcher.Constraint("Vertical", 0),
    Sketcher.Constraint("Horizontal", 1),
    Sketcher.Constraint("Vertical", 2),
    Sketcher.Constraint("Horizontal", 3),
    Sketcher.Constraint("Vertical", 4),
    Sketcher.Constraint("Horizontal", 5),
    Sketcher.Constraint("Vertical", 6),
    Sketcher.Constraint("Horizontal", 7),
    Sketcher.Constraint("Vertical", 8),
    Sketcher.Constraint("Horizontal", 9),
    Sketcher.Constraint("Vertical", 10),
    Sketcher.Constraint("Horizontal", 11),
    Sketcher.Constraint("Symmetric", 1, 2, 4, 2, -2),
    Sketcher.Constraint("Symmetric", 3, 2, 6, 2, -2),
    Sketcher.Constraint("Equal", 7, 9),
    Sketcher.Constraint("Equal", 11, 0),
    Sketcher.Constraint("Equal", 6, 8),
    Sketcher.Constraint("DistanceX", 1, 2, 1, 1, Q("8.1 mm")),
    Sketcher.Constraint("DistanceX", 4, 2, 0, 2, Q("64 mm")),
    Sketcher.Constraint("DistanceX", 8, 2, 0, 2, Q("32 mm")),
    Sketcher.Constraint("DistanceY", -1, 1, 0, 2, Q("26.3 mm")),
    Sketcher.Constraint("DistanceY", 8, 2, -1, 1, Q("34.4 mm")),
])
pocket7 = doc.addObject("PartDesign::Pocket", "Pocket006")
body.addObject(pocket7)
pocket7.Profile = sketch8
pocket7.Length = 9.5
pocket7.Reversed = True

# Sketch on XZ plane
sketch9 = doc.addObject("Sketcher::SketchObject", "Sketch008")
body.addObject(sketch9)
sketch9.AttachmentSupport = (doc.XZ_Plane, [""])
sketch9.MapMode = "FlatFace"
sketch9.AttachmentOffset = App.Placement(App.Vector(0, 0, -19), App.Rotation())
add_polygon(sketch9, [(-7.8, 20.2), (-7.8, -20.2), (-28.2, -20.2), (-28.2, 20.2)])  # lines 0-3
sketch9.addConstraint([
    Sketcher.Constraint("Vertical", 0),
    Sketcher.Constraint("Horizontal", 1),
    Sketcher.Constraint("Vertical", 2),
    Sketcher.Constraint("Horizontal", 3),
    Sketcher.Constraint("DistanceX", 1, 2, 1, 1, Q("20.4 mm")),
    Sketcher.Constraint("DistanceY", 0, 2, 0, 1, Q("40.4 mm")),
    Sketcher.Constraint("DistanceX", 0, 2, -1, 1, Q("7.8 mm")),
    Sketcher.Constraint("DistanceY", 0, 2, -1, 1, Q("20.2 mm")),
])
pocket8 = doc.addObject("PartDesign::Pocket", "Pocket007")
body.addObject(pocket8)
pocket8.Profile = sketch9
pocket8.Length = 16
pocket8.Reversed = True

# Sketch on YZ plane
sketch10 = doc.addObject("Sketcher::SketchObject", "Sketch009")
body.addObject(sketch10)
sketch10.AttachmentSupport = (doc.YZ_Plane, [""])
sketch10.MapMode = "FlatFace"
sketch10.AttachmentOffset = App.Placement(App.Vector(0, 0, 10), App.Rotation())
sketch10.addGeometry([
    Part.Circle(App.Vector(11, 10, 0), App.Vector(0, 0, 1), 2.63),
    Part.Circle(App.Vector(11, -10, 0), App.Vector(0, 0, 1), 2.63),
], False)
sketch10.addConstraint([
    Sketcher.Constraint("Equal", 0, 1),
    Sketcher.Constraint("Symmetric", 0, 3, 1, 3, -1),
    Sketcher.Constraint("Diameter", 0, Q("5.26 mm")),
    Sketcher.Constraint("DistanceX", -1, 1, 0, 3, Q("11 mm")),
    Sketcher.Constraint("DistanceY", -1, 1, 0, 3, Q("10 mm")),
])
pocket9 = doc.addObject("PartDesign::Pocket", "Pocket008")
body.addObject(pocket9)
pocket9.Profile = sketch10
pocket9.Type = "ThroughAll"
pocket9.Midplane = True

# Sketch on YZ plane
sketch11 = doc.addObject("Sketcher::SketchObject", "Sketch010")
body.addObject(sketch11)
sketch11.AttachmentSupport = (doc.YZ_Plane, [""])
sketch11.MapMode = "FlatFace"
sketch11.AttachmentOffset = App.Placement(App.Vector(0, 0, -4), App.Rotation())
sketch11.addGeometry([
    Part.Circle(App.Vector(11, 10, 0), App.Vector(0, 0, 1), 5.25),
    Part.Circle(App.Vector(11, -10, 0), App.Vector(0, 0, 1), 5.25),
], False)
sketch11.addConstraint([
    Sketcher.Constraint("Equal", 0, 1),
    Sketcher.Constraint("Symmetric", 0, 3, 1, 3, -1),
    Sketcher.Constraint("Diameter", 0, Q("10.5 mm")),
    Sketcher.Constraint("DistanceX", -1, 1, 0, 3, Q("11 mm")),
    Sketcher.Constraint("DistanceY", -1, 1, 0, 3, Q("10 mm")),
])
pocket10 = doc.addObject("PartDesign::Pocket", "Pocket009")
body.addObject(pocket10)
pocket10.Profile = sketch11
pocket10.Type = "ThroughAll"
pocket10.Reversed = True

# Sketch on YZ plane
sketch12 = doc.addObject("Sketcher::SketchObject", "Sketch011")
body.addObject(sketch12)
sketch12.AttachmentSupport = (doc.YZ_Plane, [""])
sketch12.MapMode = "FlatFace"
sketch12.AttachmentOffset = App.Placement(App.Vector(0, 0, -32), App.Rotation())
sketch12.addGeometry([
    Part.Circle(App.Vector(11, 10, 0), App.Vector(0, 0, 1), 5.25),
    Part.Circle(App.Vector(11, -10, 0), App.Vector(0, 0, 1), 5.25),
], False)
sketch12.addConstraint([
    Sketcher.Constraint("Equal", 0, 1),
    Sketcher.Constraint("Symmetric", 0, 3, 1, 3, -1),
    Sketcher.Constraint("Diameter", 0, Q("10.5 mm")),
    Sketcher.Constraint("DistanceX", -1, 1, 0, 3, Q("11 mm")),
    Sketcher.Constraint("DistanceY", -1, 1, 0, 3, Q("10 mm")),
])
pocket11 = doc.addObject("PartDesign::Pocket", "Pocket010")
body.addObject(pocket11)
pocket11.Profile = sketch12
pocket11.Type = "ThroughAll"

# Sketch on XZ plane
sketch13 = doc.addObject("Sketcher::SketchObject", "Sketch012")
body.addObject(sketch13)
sketch13.AttachmentSupport = (doc.XZ_Plane, [""])
sketch13.MapMode = "FlatFace"
sketch13.AttachmentOffset = App.Placement(App.Vector(0, 0, -1), App.Rotation())
sketch13.addGeometry([
    Part.LineSegment(App.Vector(-13, 79.35, 0), App.Vector(-27, 79.35, 0)),  # 0
    Part.ArcOfCircle(Part.Circle(App.Vector(-26.999999, 76.349999, 0), App.Vector(0, 0, 1), 3.000001), math.radians(90.000022), math.radians(179.999978)),  # 1
    Part.LineSegment(App.Vector(-30, 76.35, 0), App.Vector(-30, 60.35, 0)),  # 2
    Part.ArcOfCircle(Part.Circle(App.Vector(-26.999999, 60.350001, 0), App.Vector(0, 0, 1), 3.000001), math.radians(-179.999978), math.radians(-90.000022)),  # 3
    Part.LineSegment(App.Vector(-27, 57.35, 0), App.Vector(-13, 57.35, 0)),  # 4
    Part.ArcOfCircle(Part.Circle(App.Vector(-13.000001, 60.350001, 0), App.Vector(0, 0, 1), 3.000001), math.radians(-89.999978), math.radians(-0.000022)),  # 5
    Part.LineSegment(App.Vector(-10, 60.35, 0), App.Vector(-10, 76.35, 0)),  # 6
    Part.ArcOfCircle(Part.Circle(App.Vector(-13.000001, 76.349999, 0), App.Vector(0, 0, 1), 3.000001), math.radians(0.000022), math.radians(89.999978)),  # 7
], False)
sketch13.addConstraint([
    Sketcher.Constraint("Tangent", 0, 2, 1, 1),
    Sketcher.Constraint("Tangent", 1, 2, 2, 1),
    Sketcher.Constraint("Tangent", 2, 2, 3, 1),
    Sketcher.Constraint("Tangent", 3, 2, 4, 1),
    Sketcher.Constraint("Tangent", 4, 2, 5, 1),
    Sketcher.Constraint("Tangent", 5, 2, 6, 1),
    Sketcher.Constraint("Tangent", 6, 2, 7, 1),
    Sketcher.Constraint("Tangent", 7, 2, 0, 1),
    Sketcher.Constraint("Horizontal", 0),
    Sketcher.Constraint("Vertical", 2),
    Sketcher.Constraint("Horizontal", 4),
    Sketcher.Constraint("Vertical", 6),
    Sketcher.Constraint("Equal", 1, 3),
    Sketcher.Constraint("Equal", 3, 5),
    Sketcher.Constraint("Equal", 5, 7),
    Sketcher.Constraint("Radius", 1, Q("3.000001 mm")),
    Sketcher.Constraint("DistanceX", 0, 2, 0, 1, Q("14 mm")),
    Sketcher.Constraint("DistanceY", 2, 2, 2, 1, Q("16 mm")),
    Sketcher.Constraint("DistanceX", 1, 3, -1, 1, Q("26.999999 mm")),
    Sketcher.Constraint("DistanceY", -1, 1, 1, 3, Q("76.349999 mm")),
])
pad2 = doc.addObject("PartDesign::Pad", "Pad001")
body.addObject(pad2)
pad2.Profile = sketch13
pad2.Length = 6

# Sketch on XZ plane
sketch14 = doc.addObject("Sketcher::SketchObject", "Sketch013")
body.addObject(sketch14)
sketch14.AttachmentSupport = (doc.XZ_Plane, [""])
sketch14.MapMode = "FlatFace"
sketch14.AttachmentOffset = App.Placement(App.Vector(0, 0, -19), App.Rotation())
add_polygon(sketch14, [(-12.221825, 68.35), (-20, 76.128175), (-27.778175, 68.35), (-20, 60.571825)])  # lines 0-3
sketch14.addConstraint([
    Sketcher.Constraint("Perpendicular", 0, 1),
    Sketcher.Constraint("Perpendicular", 1, 2),
    Sketcher.Constraint("Perpendicular", 2, 3),
    Sketcher.Constraint("Horizontal", 1, 2, 3, 2),
    Sketcher.Constraint("Vertical", 0, 2, 2, 2),
    Sketcher.Constraint("Distance", 0, Q("11.000001 mm")),
    Sketcher.Constraint("DistanceX", 0, 2, -1, 1, Q("20 mm")),
    Sketcher.Constraint("DistanceY", -1, 1, 1, 2, Q("68.35 mm")),
])
pocket12 = doc.addObject("PartDesign::Pocket", "Pocket011")
body.addObject(pocket12)
pocket12.Profile = sketch14
pocket12.Length = 20
pocket12.Reversed = True

# Sketch on XZ plane
sketch15 = doc.addObject("Sketcher::SketchObject", "Sketch014")
body.addObject(sketch15)
sketch15.AttachmentSupport = (doc.XZ_Plane, [""])
sketch15.MapMode = "FlatFace"
sketch15.AttachmentOffset = App.Placement(App.Vector(0, 0, -19), App.Rotation())
sketch15.addGeometry(Part.Circle(App.Vector(-20, 68.35, 0), App.Vector(0, 0, 1), 2.1), False)
sketch15.addConstraint([
    Sketcher.Constraint("Diameter", 0, Q("4.2 mm")),
    Sketcher.Constraint("DistanceX", 0, 3, -1, 1, Q("20 mm")),
    Sketcher.Constraint("DistanceY", -1, 1, 0, 3, Q("68.35 mm")),
])
pocket13 = doc.addObject("PartDesign::Pocket", "Pocket012")
body.addObject(pocket13)
pocket13.Profile = sketch15
pocket13.Type = "ThroughAll"
pocket13.Midplane = True
body2 = doc.addObject("PartDesign::Body", "Body001")
doc.recompute()

mirroring = doc.addObject("Part::Mirroring", "Mirroring")
mirroring.Source = body
mirroring.Base = App.Vector(0.000028, 16.506189, 25.826885)
mirroring.Normal = App.Vector(0, 1, 0)
body2.BaseFeature = mirroring
doc.recompute()
body.Visibility = False
mirroring.Visibility = False

doc.recompute()
